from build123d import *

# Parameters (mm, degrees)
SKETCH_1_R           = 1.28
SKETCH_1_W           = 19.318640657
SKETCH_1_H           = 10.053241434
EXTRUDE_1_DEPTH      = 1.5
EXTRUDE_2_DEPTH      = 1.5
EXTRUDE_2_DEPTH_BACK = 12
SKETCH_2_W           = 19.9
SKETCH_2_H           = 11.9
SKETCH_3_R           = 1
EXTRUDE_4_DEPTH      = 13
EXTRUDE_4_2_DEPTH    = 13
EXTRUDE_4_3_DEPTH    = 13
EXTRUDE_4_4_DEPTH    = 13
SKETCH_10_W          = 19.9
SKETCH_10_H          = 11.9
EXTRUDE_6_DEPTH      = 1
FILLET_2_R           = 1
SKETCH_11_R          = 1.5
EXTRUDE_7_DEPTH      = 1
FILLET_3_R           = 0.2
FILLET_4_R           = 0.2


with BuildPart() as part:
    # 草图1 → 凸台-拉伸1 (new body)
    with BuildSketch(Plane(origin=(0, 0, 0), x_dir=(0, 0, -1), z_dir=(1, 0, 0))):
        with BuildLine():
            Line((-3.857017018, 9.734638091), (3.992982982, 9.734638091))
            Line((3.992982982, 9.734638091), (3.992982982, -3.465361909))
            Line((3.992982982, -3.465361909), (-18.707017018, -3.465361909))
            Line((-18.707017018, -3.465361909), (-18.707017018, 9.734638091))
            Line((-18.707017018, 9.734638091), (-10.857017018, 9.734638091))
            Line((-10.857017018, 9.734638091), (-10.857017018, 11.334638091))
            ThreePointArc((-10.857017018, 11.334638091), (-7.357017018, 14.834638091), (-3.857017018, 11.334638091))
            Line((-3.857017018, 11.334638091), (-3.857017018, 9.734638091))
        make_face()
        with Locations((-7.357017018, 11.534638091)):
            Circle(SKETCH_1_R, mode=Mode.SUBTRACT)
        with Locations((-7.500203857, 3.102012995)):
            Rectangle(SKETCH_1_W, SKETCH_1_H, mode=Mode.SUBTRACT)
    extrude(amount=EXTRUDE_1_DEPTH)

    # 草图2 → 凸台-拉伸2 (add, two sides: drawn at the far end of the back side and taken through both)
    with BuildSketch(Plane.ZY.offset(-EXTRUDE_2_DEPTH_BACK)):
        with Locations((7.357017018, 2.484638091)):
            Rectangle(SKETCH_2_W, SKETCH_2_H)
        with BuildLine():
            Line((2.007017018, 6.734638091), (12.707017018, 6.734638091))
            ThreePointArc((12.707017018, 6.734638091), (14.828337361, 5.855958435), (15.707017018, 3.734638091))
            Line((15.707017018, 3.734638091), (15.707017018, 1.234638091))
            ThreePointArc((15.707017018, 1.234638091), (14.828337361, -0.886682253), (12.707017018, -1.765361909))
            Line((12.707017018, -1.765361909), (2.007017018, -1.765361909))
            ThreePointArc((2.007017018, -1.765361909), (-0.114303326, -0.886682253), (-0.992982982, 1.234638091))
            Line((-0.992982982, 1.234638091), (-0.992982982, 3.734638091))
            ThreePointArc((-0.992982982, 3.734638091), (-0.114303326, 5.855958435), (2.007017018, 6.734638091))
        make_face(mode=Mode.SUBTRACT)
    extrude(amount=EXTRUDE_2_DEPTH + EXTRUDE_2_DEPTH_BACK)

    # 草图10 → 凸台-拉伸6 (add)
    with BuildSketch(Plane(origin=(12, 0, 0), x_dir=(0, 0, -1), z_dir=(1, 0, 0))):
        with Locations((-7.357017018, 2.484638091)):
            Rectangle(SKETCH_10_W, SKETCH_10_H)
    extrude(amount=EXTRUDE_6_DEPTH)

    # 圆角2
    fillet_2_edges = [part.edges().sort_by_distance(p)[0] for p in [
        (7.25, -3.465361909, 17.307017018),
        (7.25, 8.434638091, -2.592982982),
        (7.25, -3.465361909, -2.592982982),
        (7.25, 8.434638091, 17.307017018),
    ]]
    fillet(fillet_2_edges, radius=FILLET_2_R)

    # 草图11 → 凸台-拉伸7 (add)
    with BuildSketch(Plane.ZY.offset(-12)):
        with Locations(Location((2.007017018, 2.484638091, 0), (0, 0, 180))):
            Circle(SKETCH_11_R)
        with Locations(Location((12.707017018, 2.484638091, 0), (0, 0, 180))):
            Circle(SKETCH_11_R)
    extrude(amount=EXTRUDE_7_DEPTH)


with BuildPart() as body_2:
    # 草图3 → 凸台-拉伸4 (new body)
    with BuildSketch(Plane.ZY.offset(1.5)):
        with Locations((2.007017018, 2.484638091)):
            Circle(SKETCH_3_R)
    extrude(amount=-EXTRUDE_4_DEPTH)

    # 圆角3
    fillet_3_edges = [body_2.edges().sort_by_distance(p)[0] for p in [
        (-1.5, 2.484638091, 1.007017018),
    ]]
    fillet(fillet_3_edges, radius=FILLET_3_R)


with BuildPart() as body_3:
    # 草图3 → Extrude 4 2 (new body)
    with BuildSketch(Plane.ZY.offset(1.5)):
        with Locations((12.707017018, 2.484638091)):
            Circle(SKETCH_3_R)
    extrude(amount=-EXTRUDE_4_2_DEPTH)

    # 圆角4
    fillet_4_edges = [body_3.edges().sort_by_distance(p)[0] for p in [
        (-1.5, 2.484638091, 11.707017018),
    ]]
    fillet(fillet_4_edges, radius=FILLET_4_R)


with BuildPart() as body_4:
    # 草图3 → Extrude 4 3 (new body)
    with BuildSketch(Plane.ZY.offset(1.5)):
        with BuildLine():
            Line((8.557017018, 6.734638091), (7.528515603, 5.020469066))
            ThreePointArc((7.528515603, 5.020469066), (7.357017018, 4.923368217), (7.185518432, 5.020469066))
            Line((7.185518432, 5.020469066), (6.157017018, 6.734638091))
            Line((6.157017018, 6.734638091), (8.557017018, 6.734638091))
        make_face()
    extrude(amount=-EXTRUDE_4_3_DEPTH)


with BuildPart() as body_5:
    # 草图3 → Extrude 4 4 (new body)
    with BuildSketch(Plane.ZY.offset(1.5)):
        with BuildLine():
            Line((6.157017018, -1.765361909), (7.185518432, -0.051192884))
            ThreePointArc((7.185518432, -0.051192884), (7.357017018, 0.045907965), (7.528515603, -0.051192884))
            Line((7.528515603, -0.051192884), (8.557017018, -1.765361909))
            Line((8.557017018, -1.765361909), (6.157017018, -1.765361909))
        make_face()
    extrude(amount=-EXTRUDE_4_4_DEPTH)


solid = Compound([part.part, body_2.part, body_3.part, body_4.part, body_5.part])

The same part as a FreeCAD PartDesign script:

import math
import FreeCAD as App
import Part
import Sketcher

V = App.Vector
Q = App.Units.Quantity


def edges_at(feature, points):
    """Names of the edges that pass closest to the given points."""
    edges = feature.Shape.Edges
    near = lambda p: min(range(len(edges)), key=lambda i: edges[i].distToShape(Part.Vertex(*p))[0])
    return sorted({f"Edge{near(p) + 1}" for p in points})


def add_polygon(sketch, points):
    """Adds a closed chain of lines whose ends are joined by coincident constraints."""
    first, n = sketch.GeometryCount, len(points)
    for a, b in zip(points, points[1:] + points[:1]):
        sketch.addGeometry(Part.LineSegment(App.Vector(*a, 0), App.Vector(*b, 0)), False)
    for i in range(n):
        sketch.addConstraint(Sketcher.Constraint("Coincident", first + i, 2, first + (i + 1) % n, 1))

doc = App.newDocument("Part")
body = doc.addObject("PartDesign::Body", "Body")

sketch1 = body.newObject("Sketcher::SketchObject", "Sketch")
sketch1.AttachmentSupport = (doc.getObject("YZ_Plane"), [""])
sketch1.MapMode = "FlatFace"
sketch1.addGeometry(Part.LineSegment(V(9.7, -4, 0), V(9.7, 3.9, 0)), False)
sketch1.addGeometry(Part.LineSegment(V(9.7, 3.9, 0), V(11.3, 3.9, 0)), False)
sketch1.addGeometry(Part.ArcOfCircle(Part.Circle(V(11.3, 7.4, 0), V(0, 0, 1), 3.5), math.radians(-90), math.radians(90)), False)
sketch1.addGeometry(Part.LineSegment(V(11.3, 10.9, 0), V(9.7, 10.9, 0)), False)
sketch1.addGeometry(Part.LineSegment(V(9.7, 10.9, 0), V(9.7, 18.7, 0)), False)
sketch1.addGeometry(Part.LineSegment(V(9.7, 18.7, 0), V(-3.5, 18.7, 0)), False)
sketch1.addGeometry(Part.LineSegment(V(-3.5, 18.7, 0), V(-3.5, -4, 0)), False)
sketch1.addGeometry(Part.LineSegment(V(-3.5, -4, 0), V(9.7, -4, 0)), False)
add_polygon(sketch1, [(-1.9, 17.2), (8.1, 17.2), (8.1, -2.2), (-1.9, -2.2)])
sketch1.addGeometry(Part.Circle(V(11.5, 7.4, 0), V(0, 0, 1), 1.3), False)
sketch1.addConstraint(Sketcher.Constraint("Coincident", 0, 2, 1, 1))
sketch1.addConstraint(Sketcher.Constraint("Tangent", 1, 2, 2, 1))
sketch1.addConstraint(Sketcher.Constraint("Tangent", 2, 2, 3, 1))
sketch1.addConstraint(Sketcher.Constraint("Coincident", 3, 2, 4, 1))
sketch1.addConstraint(Sketcher.Constraint("Coincident", 4, 2, 5, 1))
sketch1.addConstraint(Sketcher.Constraint("Coincident", 5, 2, 6, 1))
sketch1.addConstraint(Sketcher.Constraint("Coincident", 6, 2, 7, 1))
sketch1.addConstraint(Sketcher.Constraint("Coincident", 7, 2, 0, 1))
sketch1.addConstraint(Sketcher.Constraint("Vertical", 0))
sketch1.addConstraint(Sketcher.Constraint("Horizontal", 1))
sketch1.addConstraint(Sketcher.Constraint("Horizontal", 3))
sketch1.addConstraint(Sketcher.Constraint("Vertical", 4))
sketch1.addConstraint(Sketcher.Constraint("Horizontal", 5))
sketch1.addConstraint(Sketcher.Constraint("Vertical", 6))
sketch1.addConstraint(Sketcher.Constraint("Horizontal", 7))
sketch1.addConstraint(Sketcher.Constraint("Horizontal", 8))
sketch1.addConstraint(Sketcher.Constraint("Vertical", 9))
sketch1.addConstraint(Sketcher.Constraint("Horizontal", 10))
sketch1.addConstraint(Sketcher.Constraint("Vertical", 11))
sketch1.addConstraint(Sketcher.Constraint("Horizontal", 2, 3, 12, 3))
sketch1.addConstraint(Sketcher.Constraint("Vertical", 0, 2, 3, 2))
sketch1.addConstraint(Sketcher.Constraint("Equal", 0, 4))
sketch1.addConstraint(Sketcher.Constraint("Radius", 2, Q("3.5 mm")))
sketch1.addConstraint(Sketcher.Constraint("Diameter", 12, Q("2.56 mm")))
sketch1.addConstraint(Sketcher.Constraint("DistanceX", 1, 1, 1, 2, Q("1.6 mm")))
sketch1.addConstraint(Sketcher.Constraint("DistanceX", 5, 2, 5, 1, Q("13.2 mm")))
sketch1.addConstraint(Sketcher.Constraint("DistanceY", 6, 2, 6, 1, Q("22.7 mm")))
sketch1.addConstraint(Sketcher.Constraint("DistanceX", 5, 2, 12, 3, Q("15 mm")))
sketch1.addConstraint(Sketcher.Constraint("DistanceX", 8, 1, 8, 2, Q("10.053241 mm")))
sketch1.addConstraint(Sketcher.Constraint("DistanceY", 9, 2, 9, 1, Q("19.318641 mm")))
sketch1.addConstraint(Sketcher.Constraint("DistanceX", -1, 1, 2, 3, Q("11.334638 mm")))
sketch1.addConstraint(Sketcher.Constraint("DistanceY", -1, 1, 2, 3, Q("7.357017 mm")))
sketch1.addConstraint(Sketcher.Constraint("DistanceX", -1, 1, 8, 2, Q("8.128634 mm")))
sketch1.addConstraint(Sketcher.Constraint("DistanceY", -1, 1, 8, 2, Q("17.159524 mm")))
pad1 = body.newObject("PartDesign::Pad", "Pad")
pad1.Profile = sketch1
pad1.Length = 1.5

sketch2 = body.newObject("Sketcher::SketchObject", "Sketch001")
sketch2.AttachmentSupport = (doc.getObject("YZ_Plane"), [""])
sketch2.MapMode = "FlatFace"
add_polygon(sketch2, [(8.4, -2.6), (-3.5, -2.6), (-3.5, 17.3), (8.4, 17.3)])
sketch2.addGeometry(Part.ArcOfCircle(Part.Circle(V(3.7, 2, 0), V(0, 0, 1), 3), math.radians(-90), math.radians(0)), False)
sketch2.addGeometry(Part.LineSegment(V(6.7, 2, 0), V(6.7, 12.7, 0)), False)
sketch2.addGeometry(Part.ArcOfCircle(Part.Circle(V(3.7, 12.7, 0), V(0, 0, 1), 3), math.radians(0), math.radians(90)), False)
sketch2.addGeometry(Part.LineSegment(V(3.7, 15.7, 0), V(1.2, 15.7, 0)), False)
sketch2.addGeometry(Part.ArcOfCircle(Part.Circle(V(1.2, 12.7, 0), V(0, 0, 1), 3), math.radians(90), math.radians(180)), False)
sketch2.addGeometry(Part.LineSegment(V(-1.8, 12.7, 0), V(-1.8, 2, 0)), False)
sketch2.addGeometry(Part.ArcOfCircle(Part.Circle(V(1.2, 2, 0), V(0, 0, 1), 3), math.radians(180), math.radians(270)), False)
sketch2.addGeometry(Part.LineSegment(V(1.2, -1, 0), V(3.7, -1, 0)), False)
sketch2.addConstraint(Sketcher.Constraint("Tangent", 4, 2, 5, 1))
sketch2.addConstraint(Sketcher.Constraint("Tangent", 5, 2, 6, 1))
sketch2.addConstraint(Sketcher.Constraint("Tangent", 6, 2, 7, 1))
sketch2.addConstraint(Sketcher.Constraint("Tangent", 7, 2, 8, 1))
sketch2.addConstraint(Sketcher.Constraint("Tangent", 8, 2, 9, 1))
sketch2.addConstraint(Sketcher.Constraint("Tangent", 9, 2, 10, 1))
sketch2.addConstraint(Sketcher.Constraint("Tangent", 10, 2, 11, 1))
sketch2.addConstraint(Sketcher.Constraint("Tangent", 11, 2, 4, 1))
sketch2.addConstraint(Sketcher.Constraint("Horizontal", 0))
sketch2.addConstraint(Sketcher.Constraint("Vertical", 1))
sketch2.addConstraint(Sketcher.Constraint("Horizontal", 2))
sketch2.addConstraint(Sketcher.Constraint("Vertical", 3))
sketch2.addConstraint(Sketcher.Constraint("Vertical", 5))
sketch2.addConstraint(Sketcher.Constraint("Horizontal", 7))
sketch2.addConstraint(Sketcher.Constraint("Vertical", 9))
sketch2.addConstraint(Sketcher.Constraint("Horizontal", 11))
sketch2.addConstraint(Sketcher.Constraint("Equal", 4, 6))
sketch2.addConstraint(Sketcher.Constraint("Equal", 6, 8))
sketch2.addConstraint(Sketcher.Constraint("Equal", 8, 10))
sketch2.addConstraint(Sketcher.Constraint("Radius", 4, Q("3 mm")))
sketch2.addConstraint(Sketcher.Constraint("DistanceX", 0, 2, 0, 1, Q("11.9 mm")))
sketch2.addConstraint(Sketcher.Constraint("DistanceX", 7, 2, 7, 1, Q("2.5 mm")))
sketch2.addConstraint(Sketcher.Constraint("DistanceY", 1, 1, 1, 2, Q("19.9 mm")))
sketch2.addConstraint(Sketcher.Constraint("DistanceY", 5, 1, 5, 2, Q("10.7 mm")))
sketch2.addConstraint(Sketcher.Constraint("DistanceX", 0, 2, 10, 3, Q("4.7 mm")))
sketch2.addConstraint(Sketcher.Constraint("DistanceY", 0, 2, 10, 3, Q("4.6 mm")))
sketch2.addConstraint(Sketcher.Constraint("DistanceX", -1, 1, 4, 3, Q("3.734638 mm")))
sketch2.addConstraint(Sketcher.Constraint("DistanceY", -1, 1, 4, 3, Q("2.007017 mm")))
pad2 = body.newObject("PartDesign::Pad", "Pad001")
pad2.Profile = sketch2
pad2.Type = "TwoLengths"
pad2.Length = 1.5
pad2.Length2 = 12
pad2.Reversed = True

sketch3 = body.newObject("Sketcher::SketchObject", "Sketch002")
sketch3.AttachmentSupport = (doc.getObject("YZ_Plane"), [""])
sketch3.MapMode = "FlatFace"
sketch3.AttachmentOffset = App.Placement(V(0, 0, 12), App.Rotation())
add_polygon(sketch3, [(8, 17), (-3, 17), (-3, -3), (8, -3)])
sketch3.addConstraint(Sketcher.Constraint("Horizontal", 0))
sketch3.addConstraint(Sketcher.Constraint("Vertical", 1))
sketch3.addConstraint(Sketcher.Constraint("Horizontal", 2))
sketch3.addConstraint(Sketcher.Constraint("Vertical", 3))
sketch3.addConstraint(Sketcher.Constraint("DistanceX", 0, 2, 0, 1, Q("11.9 mm")))
sketch3.addConstraint(Sketcher.Constraint("DistanceY", 1, 2, 1, 1, Q("19.9 mm")))
sketch3.addConstraint(Sketcher.Constraint("DistanceX", 0, 2, -1, 1, Q("3.465362 mm")))
sketch3.addConstraint(Sketcher.Constraint("DistanceY", -1, 1, 0, 2, Q("17.307017 mm")))
pad3 = body.newObject("PartDesign::Pad", "Pad002")
pad3.Profile = sketch3
pad3.Length = 1
doc.recompute()

fillet = body.newObject("PartDesign::Fillet", "Fillet")
fillet.Base = (pad3, edges_at(pad3, [
    (7.25, -3.465, 17.307),
    (7.25, 8.435, -2.593),
    (7.25, -3.465, -2.593),
    (7.25, 8.435, 17.307),
]))
fillet.Radius = 1

sketch4 = body.newObject("Sketcher::SketchObject", "Sketch003")
sketch4.AttachmentSupport = (doc.getObject("YZ_Plane"), [""])
sketch4.MapMode = "FlatFace"
sketch4.AttachmentOffset = App.Placement(V(0, 0, 12), App.Rotation())
sketch4.addGeometry(Part.Circle(V(2.5, 2, 0), V(0, 0, 1), 1.5), False)
sketch4.addGeometry(Part.Circle(V(2.5, 12.7, 0), V(0, 0, 1), 1.5), False)
sketch4.addConstraint(Sketcher.Constraint("Equal", 0, 1))
sketch4.addConstraint(Sketcher.Constraint("Vertical", 0, 3, 1, 3))
sketch4.addConstraint(Sketcher.Constraint("Diameter", 0, Q("3 mm")))
sketch4.addConstraint(Sketcher.Constraint("DistanceY", 0, 3, 1, 3, Q("10.7 mm")))
sketch4.addConstraint(Sketcher.Constraint("DistanceX", -1, 1, 0, 3, Q("2.484638 mm")))
sketch4.addConstraint(Sketcher.Constraint("DistanceY", -1, 1, 0, 3, Q("2.007017 mm")))
pad4 = body.newObject("PartDesign::Pad", "Pad003")
pad4.Profile = sketch4
pad4.Length = 1
pad4.Reversed = True
body2 = doc.addObject("PartDesign::Body", "Body001")

sketch5 = body2.newObject("Sketcher::SketchObject", "Sketch004")
sketch5.AttachmentSupport = (doc.getObject("YZ_Plane001"), [""])
sketch5.MapMode = "FlatFace"
sketch5.AttachmentOffset = App.Placement(V(0, 0, -1.5), App.Rotation())
sketch5.addGeometry(Part.Circle(V(2.5, 2, 0), V(0, 0, 1), 1), False)
sketch5.addConstraint(Sketcher.Constraint("Diameter", 0, Q("2 mm")))
sketch5.addConstraint(Sketcher.Constraint("DistanceX", -1, 1, 0, 3, Q("2.484638 mm")))
sketch5.addConstraint(Sketcher.Constraint("DistanceY", -1, 1, 0, 3, Q("2.007017 mm")))
pad5 = body2.newObject("PartDesign::Pad", "Pad004")
pad5.Profile = sketch5
pad5.Length = 13
doc.recompute()

fillet2 = body2.newObject("PartDesign::Fillet", "Fillet001")
fillet2.Base = (pad5, edges_at(pad5, [(-1.5, 2.485, 1.007)]))
fillet2.Radius = 0.2
body3 = doc.addObject("PartDesign::Body", "Body002")

sketch6 = body3.newObject("Sketcher::SketchObject", "Sketch005")
sketch6.AttachmentSupport = (doc.getObject("YZ_Plane002"), [""])
sketch6.MapMode = "FlatFace"
sketch6.AttachmentOffset = App.Placement(V(0, 0, -1.5), App.Rotation())
sketch6.addGeometry(Part.Circle(V(2.5, 12.7, 0), V(0, 0, 1), 1), False)
sketch6.addConstraint(Sketcher.Constraint("Diameter", 0, Q("2 mm")))
sketch6.addConstraint(Sketcher.Constraint("DistanceX", -1, 1, 0, 3, Q("2.484638 mm")))
sketch6.addConstraint(Sketcher.Constraint("DistanceY", -1, 1, 0, 3, Q("12.707017 mm")))
pad6 = body3.newObject("PartDesign::Pad", "Pad005")
pad6.Profile = sketch6
pad6.Length = 13
doc.recompute()

fillet3 = body3.newObject("PartDesign::Fillet", "Fillet002")
fillet3.Base = (pad6, edges_at(pad6, [(-1.5, 2.485, 11.707)]))
fillet3.Radius = 0.2
body4 = doc.addObject("PartDesign::Body", "Body003")

sketch7 = body4.newObject("Sketcher::SketchObject", "Sketch006")
sketch7.AttachmentSupport = (doc.getObject("YZ_Plane003"), [""])
sketch7.MapMode = "FlatFace"
sketch7.AttachmentOffset = App.Placement(V(0, 0, -1.5), App.Rotation())
sketch7.addGeometry(Part.LineSegment(V(5.02, 7.53, 0), V(6.73, 8.56, 0)), False)
sketch7.addGeometry(Part.LineSegment(V(6.73, 8.56, 0), V(6.73, 6.16, 0)), False)
sketch7.addGeometry(Part.LineSegment(V(6.73, 6.16, 0), V(5.02, 7.19, 0)), False)
sketch7.addGeometry(Part.ArcOfCircle(Part.Circle(V(5.12, 7.36, 0), V(0, 0, 1), 0.2), math.radians(121), math.radians(239)), False)
sketch7.addConstraint(Sketcher.Constraint("Coincident", 0, 2, 1, 1))
sketch7.addConstraint(Sketcher.Constraint("Coincident", 1, 2, 2, 1))
sketch7.addConstraint(Sketcher.Constraint("Tangent", 2, 2, 3, 2))
sketch7.addConstraint(Sketcher.Constraint("Tangent", 3, 1, 0, 1))
sketch7.addConstraint(Sketcher.Constraint("Vertical", 1))
sketch7.addConstraint(Sketcher.Constraint("Vertical", 2, 2, 3, 1))
sketch7.addConstraint(Sketcher.Constraint("Radius", 3, Q("0.2 mm")))
sketch7.addConstraint(Sketcher.Constraint("DistanceY", 1, 2, 1, 1, Q("2.4 mm")))
sketch7.addConstraint(Sketcher.Constraint("DistanceX", 2, 2, 3, 3, Q("0.102899 mm")))
sketch7.addConstraint(Sketcher.Constraint("DistanceX", -1, 1, 3, 3, Q("5.123368 mm")))
sketch7.addConstraint(Sketcher.Constraint("DistanceY", -1, 1, 2, 2, Q("7.185518 mm")))
pad7 = body4.newObject("PartDesign::Pad", "Pad006")
pad7.Profile = sketch7
pad7.Length = 13
body5 = doc.addObject("PartDesign::Body", "Body004")

sketch8 = body5.newObject("Sketcher::SketchObject", "Sketch007")
sketch8.AttachmentSupport = (doc.getObject("YZ_Plane004"), [""])
sketch8.MapMode = "FlatFace"
sketch8.AttachmentOffset = App.Placement(V(0, 0, -1.5), App.Rotation())
sketch8.addGeometry(Part.LineSegment(V(-0.05, 7.19, 0), V(-1.77, 6.16, 0)), False)
sketch8.addGeometry(Part.LineSegment(V(-1.77, 6.16, 0), V(-1.77, 8.56, 0)), False)
sketch8.addGeometry(Part.LineSegment(V(-1.77, 8.56, 0), V(-0.05, 7.53, 0)), False)
sketch8.addGeometry(Part.ArcOfCircle(Part.Circle(V(-0.15, 7.36, 0), V(0, 0, 1), 0.2), math.radians(-59), math.radians(59)), False)
sketch8.addConstraint(Sketcher.Constraint("Coincident", 0, 2, 1, 1))
sketch8.addConstraint(Sketcher.Constraint("Coincident", 1, 2, 2, 1))
sketch8.addConstraint(Sketcher.Constraint("Tangent", 2, 2, 3, 2))
sketch8.addConstraint(Sketcher.Constraint("Tangent", 3, 1, 0, 1))
sketch8.addConstraint(Sketcher.Constraint("Vertical", 1))
sketch8.addConstraint(Sketcher.Constraint("Vertical", 2, 2, 3, 1))
sketch8.addConstraint(Sketcher.Constraint("Radius", 3, Q("0.2 mm")))
sketch8.addConstraint(Sketcher.Constraint("DistanceY", 1, 1, 1, 2, Q("2.4 mm")))
sketch8.addConstraint(Sketcher.Constraint("DistanceX", 3, 3, 2, 2, Q("0.102899 mm")))
sketch8.addConstraint(Sketcher.Constraint("DistanceX", 0, 2, -1, 1, Q("1.765362 mm")))
sketch8.addConstraint(Sketcher.Constraint("DistanceY", -1, 1, 3, 1, Q("7.185518 mm")))
pad8 = body5.newObject("PartDesign::Pad", "Pad007")
pad8.Profile = sketch8
pad8.Length = 13

doc.recompute()
